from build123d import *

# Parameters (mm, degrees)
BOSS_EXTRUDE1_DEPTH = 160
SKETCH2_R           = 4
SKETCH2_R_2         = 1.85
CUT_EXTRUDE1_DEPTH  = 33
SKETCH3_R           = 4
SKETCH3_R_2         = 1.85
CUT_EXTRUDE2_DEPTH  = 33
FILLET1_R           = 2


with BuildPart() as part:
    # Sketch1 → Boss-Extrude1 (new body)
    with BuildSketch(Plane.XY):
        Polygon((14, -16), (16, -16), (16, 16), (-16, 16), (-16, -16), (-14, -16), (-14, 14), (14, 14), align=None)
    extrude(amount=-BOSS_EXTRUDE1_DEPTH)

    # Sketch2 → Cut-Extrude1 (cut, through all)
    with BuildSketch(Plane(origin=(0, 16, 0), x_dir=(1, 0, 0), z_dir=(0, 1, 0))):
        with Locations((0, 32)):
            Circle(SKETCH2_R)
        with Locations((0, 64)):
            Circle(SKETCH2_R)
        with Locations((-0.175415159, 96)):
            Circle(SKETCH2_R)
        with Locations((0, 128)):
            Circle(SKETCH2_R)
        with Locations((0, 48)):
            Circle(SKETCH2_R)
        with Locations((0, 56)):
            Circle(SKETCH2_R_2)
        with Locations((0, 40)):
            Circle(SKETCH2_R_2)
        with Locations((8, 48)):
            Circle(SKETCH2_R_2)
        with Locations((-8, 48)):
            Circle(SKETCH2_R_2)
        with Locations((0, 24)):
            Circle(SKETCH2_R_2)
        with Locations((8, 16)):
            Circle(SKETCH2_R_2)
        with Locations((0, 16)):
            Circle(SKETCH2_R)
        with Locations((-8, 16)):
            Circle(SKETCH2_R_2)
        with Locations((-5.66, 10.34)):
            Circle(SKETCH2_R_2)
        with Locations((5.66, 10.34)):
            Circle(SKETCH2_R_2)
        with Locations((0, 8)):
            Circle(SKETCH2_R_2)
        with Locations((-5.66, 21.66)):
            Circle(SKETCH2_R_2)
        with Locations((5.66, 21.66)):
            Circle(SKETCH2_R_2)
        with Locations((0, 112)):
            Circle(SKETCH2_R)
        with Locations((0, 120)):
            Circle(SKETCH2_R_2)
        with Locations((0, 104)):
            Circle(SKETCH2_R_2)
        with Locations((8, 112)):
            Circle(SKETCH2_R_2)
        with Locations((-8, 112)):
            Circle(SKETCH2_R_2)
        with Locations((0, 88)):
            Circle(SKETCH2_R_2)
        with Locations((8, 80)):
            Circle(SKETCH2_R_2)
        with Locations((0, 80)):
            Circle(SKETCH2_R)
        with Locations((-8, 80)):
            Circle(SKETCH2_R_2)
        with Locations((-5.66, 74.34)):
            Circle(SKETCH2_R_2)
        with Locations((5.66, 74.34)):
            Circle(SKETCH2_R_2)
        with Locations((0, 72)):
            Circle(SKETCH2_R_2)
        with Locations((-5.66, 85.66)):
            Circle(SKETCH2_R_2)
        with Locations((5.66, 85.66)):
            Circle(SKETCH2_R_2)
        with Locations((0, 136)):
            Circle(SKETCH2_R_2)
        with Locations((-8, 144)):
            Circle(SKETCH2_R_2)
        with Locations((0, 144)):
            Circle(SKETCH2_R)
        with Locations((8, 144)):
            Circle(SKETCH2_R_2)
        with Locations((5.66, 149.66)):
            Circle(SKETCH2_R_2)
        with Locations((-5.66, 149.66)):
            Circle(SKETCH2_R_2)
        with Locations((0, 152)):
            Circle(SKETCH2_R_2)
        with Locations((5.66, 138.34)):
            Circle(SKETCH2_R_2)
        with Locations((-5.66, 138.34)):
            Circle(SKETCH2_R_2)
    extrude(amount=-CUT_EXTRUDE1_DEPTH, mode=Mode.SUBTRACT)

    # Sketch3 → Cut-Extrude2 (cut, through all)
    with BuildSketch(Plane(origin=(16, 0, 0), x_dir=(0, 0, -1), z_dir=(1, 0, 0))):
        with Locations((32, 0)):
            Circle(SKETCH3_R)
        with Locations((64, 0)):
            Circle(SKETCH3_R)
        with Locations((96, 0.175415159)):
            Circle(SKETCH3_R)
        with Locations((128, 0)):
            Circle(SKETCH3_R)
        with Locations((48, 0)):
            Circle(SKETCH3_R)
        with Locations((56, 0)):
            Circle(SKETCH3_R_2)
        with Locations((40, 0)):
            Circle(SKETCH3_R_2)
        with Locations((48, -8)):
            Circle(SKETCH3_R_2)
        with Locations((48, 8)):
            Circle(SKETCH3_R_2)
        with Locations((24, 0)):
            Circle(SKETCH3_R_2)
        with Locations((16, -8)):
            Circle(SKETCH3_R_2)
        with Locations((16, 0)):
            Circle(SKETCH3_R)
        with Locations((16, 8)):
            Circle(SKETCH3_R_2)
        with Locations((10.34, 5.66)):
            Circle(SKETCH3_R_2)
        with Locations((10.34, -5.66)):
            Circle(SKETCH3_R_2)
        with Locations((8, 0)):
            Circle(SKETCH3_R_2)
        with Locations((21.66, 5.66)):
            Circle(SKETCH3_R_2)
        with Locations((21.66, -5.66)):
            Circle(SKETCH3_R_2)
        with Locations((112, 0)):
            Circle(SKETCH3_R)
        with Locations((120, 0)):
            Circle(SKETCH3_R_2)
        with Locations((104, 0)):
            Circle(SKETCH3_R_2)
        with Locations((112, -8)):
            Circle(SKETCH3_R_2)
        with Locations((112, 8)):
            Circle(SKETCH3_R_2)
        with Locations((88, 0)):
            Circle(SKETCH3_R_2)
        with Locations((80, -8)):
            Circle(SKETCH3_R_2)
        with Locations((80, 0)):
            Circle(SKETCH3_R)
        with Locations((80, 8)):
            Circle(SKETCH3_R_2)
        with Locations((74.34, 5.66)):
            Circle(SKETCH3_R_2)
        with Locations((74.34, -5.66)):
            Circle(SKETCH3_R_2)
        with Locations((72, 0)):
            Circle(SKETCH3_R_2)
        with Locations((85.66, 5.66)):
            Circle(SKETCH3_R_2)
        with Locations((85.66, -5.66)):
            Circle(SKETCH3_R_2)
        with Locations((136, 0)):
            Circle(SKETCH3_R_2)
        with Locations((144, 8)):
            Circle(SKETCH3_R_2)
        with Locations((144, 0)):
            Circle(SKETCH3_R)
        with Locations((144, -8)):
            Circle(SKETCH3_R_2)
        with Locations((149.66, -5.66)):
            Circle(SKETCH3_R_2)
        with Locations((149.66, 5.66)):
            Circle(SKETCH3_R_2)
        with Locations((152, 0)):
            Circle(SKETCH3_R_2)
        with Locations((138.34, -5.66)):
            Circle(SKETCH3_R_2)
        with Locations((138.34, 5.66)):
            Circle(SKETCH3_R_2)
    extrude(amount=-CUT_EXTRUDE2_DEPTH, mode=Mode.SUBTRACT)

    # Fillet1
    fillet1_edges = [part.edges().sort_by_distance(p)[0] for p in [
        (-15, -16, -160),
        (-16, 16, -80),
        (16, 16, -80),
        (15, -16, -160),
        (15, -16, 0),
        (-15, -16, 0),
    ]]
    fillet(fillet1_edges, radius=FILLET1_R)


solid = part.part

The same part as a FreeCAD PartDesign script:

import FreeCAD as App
import Part
import Sketcher
Q = App.Units.Quantity


def edges_at(feature, points):
    """Names of the edges that pass closest to the given points."""
    edges = feature.Shape.Edges
    near = lambda p: min(range(len(edges)), key=lambda i: edges[i].distToShape(Part.Vertex(*p))[0])
    return sorted({f"Edge{near(p) + 1}" for p in points})


def add_polygon(sketch, points):
    """Adds a closed chain of lines whose ends are joined by coincident constraints."""
    first, n = sketch.GeometryCount, len(points)
    for a, b in zip(points, points[1:] + points[:1]):
        sketch.addGeometry(Part.LineSegment(App.Vector(*a, 0), App.Vector(*b, 0)), False)
    for i in range(n):
        sketch.addConstraint(Sketcher.Constraint("Coincident", first + i, 2, first + (i + 1) % n, 1))

doc = App.newDocument("Part")
body = doc.addObject("PartDesign::Body", "Body")

sketch1 = body.newObject("Sketcher::SketchObject", "Sketch")
sketch1.AttachmentSupport = (doc.getObject("XY_Plane"), [""])
sketch1.MapMode = "FlatFace"
add_polygon(sketch1, [(14, -16), (16, -16), (16, 16), (-16, 16), (-16, -16), (-14, -16), (-14, 14), (14, 14)])
sketch1.addConstraint([
    Sketcher.Constraint("Horizontal", 0),
    Sketcher.Constraint("Vertical", 1),
    Sketcher.Constraint("Horizontal", 2),
    Sketcher.Constraint("Vertical", 3),
    Sketcher.Constraint("Horizontal", 4),
    Sketcher.Constraint("Vertical", 5),
    Sketcher.Constraint("Horizontal", 6),
    Sketcher.Constraint("Vertical", 7),
    Sketcher.Constraint("Symmetric", 0, 2, 2, 2, -1, 1),
    Sketcher.Constraint("Symmetric", 4, 2, 7, 2, -2),
    Sketcher.Constraint("Equal", 2, 1),
    Sketcher.Constraint("DistanceX", 0, 1, 0, 2, Q("2 mm")),
    Sketcher.Constraint("DistanceX", 2, 2, 2, 1, Q("32 mm")),
    Sketcher.Constraint("DistanceY", 5, 1, 5, 2, Q("30 mm")),
])
pad1 = body.newObject("PartDesign::Pad", "Pad")
pad1.Profile = sketch1
pad1.Length = 160
pad1.Reversed = True

sketch2 = body.newObject("Sketcher::SketchObject", "Sketch001")
sketch2.AttachmentSupport = (doc.getObject("XZ_Plane"), [""])
sketch2.MapMode = "FlatFace"
sketch2.AttachmentOffset = App.Placement(App.Vector(0, 0, -16), App.Rotation())
sketch2.addGeometry([
    Part.Circle(App.Vector(0, -32, 0), App.Vector(0, 0, 1), 4),
    Part.Circle(App.Vector(0, -64, 0), App.Vector(0, 0, 1), 4),
    Part.Circle(App.Vector(-0.2, -96, 0), App.Vector(0, 0, 1), 4),
    Part.Circle(App.Vector(0, -128, 0), App.Vector(0, 0, 1), 4),
    Part.Circle(App.Vector(0, -48, 0), App.Vector(0, 0, 1), 4),
    Part.Circle(App.Vector(0, -56, 0), App.Vector(0, 0, 1), 1.9),
    Part.Circle(App.Vector(0, -40, 0), App.Vector(0, 0, 1), 1.9),
    Part.Circle(App.Vector(8, -48, 0), App.Vector(0, 0, 1), 1.9),
    Part.Circle(App.Vector(-8, -48, 0), App.Vector(0, 0, 1), 1.9),
    Part.Circle(App.Vector(0, -24, 0), App.Vector(0, 0, 1), 1.9),
    Part.Circle(App.Vector(8, -16, 0), App.Vector(0, 0, 1), 1.9),
    Part.Circle(App.Vector(0, -16, 0), App.Vector(0, 0, 1), 4),
    Part.Circle(App.Vector(-8, -16, 0), App.Vector(0, 0, 1), 1.9),
    Part.Circle(App.Vector(-5.7, -10.3, 0), App.Vector(0, 0, 1), 1.9),
    Part.Circle(App.Vector(5.7, -10.3, 0), App.Vector(0, 0, 1), 1.9),
    Part.Circle(App.Vector(0, -8, 0), App.Vector(0, 0, 1), 1.9),
    Part.Circle(App.Vector(-5.7, -21.7, 0), App.Vector(0, 0, 1), 1.9),
    Part.Circle(App.Vector(5.7, -21.7, 0), App.Vector(0, 0, 1), 1.9),
    Part.Circle(App.Vector(0, -112, 0), App.Vector(0, 0, 1), 4),
    Part.Circle(App.Vector(0, -120, 0), App.Vector(0, 0, 1), 1.9),
    Part.Circle(App.Vector(0, -104, 0), App.Vector(0, 0, 1), 1.9),
    Part.Circle(App.Vector(8, -112, 0), App.Vector(0, 0, 1), 1.9),
    Part.Circle(App.Vector(-8, -112, 0), App.Vector(0, 0, 1), 1.9),
    Part.Circle(App.Vector(0, -88, 0), App.Vector(0, 0, 1), 1.9),
    Part.Circle(App.Vector(8, -80, 0), App.Vector(0, 0, 1), 1.9),
    Part.Circle(App.Vector(0, -80, 0), App.Vector(0, 0, 1), 4),
    Part.Circle(App.Vector(-8, -80, 0), App.Vector(0, 0, 1), 1.9),
    Part.Circle(App.Vector(-5.7, -74.3, 0), App.Vector(0, 0, 1), 1.9),
    Part.Circle(App.Vector(5.7, -74.3, 0), App.Vector(0, 0, 1), 1.9),
    Part.Circle(App.Vector(0, -72, 0), App.Vector(0, 0, 1), 1.9),
    Part.Circle(App.Vector(-5.7, -85.7, 0), App.Vector(0, 0, 1), 1.9),
    Part.Circle(App.Vector(5.7, -85.7, 0), App.Vector(0, 0, 1), 1.9),
    Part.Circle(App.Vector(0, -136, 0), App.Vector(0, 0, 1), 1.9),
    Part.Circle(App.Vector(-8, -144, 0), App.Vector(0, 0, 1), 1.9),
    Part.Circle(App.Vector(0, -144, 0), App.Vector(0, 0, 1), 4),
    Part.Circle(App.Vector(8, -144, 0), App.Vector(0, 0, 1), 1.9),
    Part.Circle(App.Vector(5.7, -149.7, 0), App.Vector(0, 0, 1), 1.9),
    Part.Circle(App.Vector(-5.7, -149.7, 0), App.Vector(0, 0, 1), 1.9),
    Part.Circle(App.Vector(0, -152, 0), App.Vector(0, 0, 1), 1.9),
    Part.Circle(App.Vector(5.7, -138.3, 0), App.Vector(0, 0, 1), 1.9),
    Part.Circle(App.Vector(-5.7, -138.3, 0), App.Vector(0, 0, 1), 1.9),
], False)
sketch2.addConstraint([
    Sketcher.Constraint("Equal", 0, 1),
    Sketcher.Constraint("Equal", 1, 2),
    Sketcher.Constraint("Equal", 2, 3),
    Sketcher.Constraint("Equal", 3, 4),
    Sketcher.Constraint("Equal", 5, 6),
    Sketcher.Constraint("Equal", 6, 7),
    Sketcher.Constraint("Equal", 7, 8),
    Sketcher.Constraint("Equal", 8, 9),
    Sketcher.Constraint("Equal", 9, 10),
    Sketcher.Constraint("Equal", 4, 11),
    Sketcher.Constraint("Equal", 10, 12),
    Sketcher.Constraint("Equal", 12, 13),
    Sketcher.Constraint("Equal", 13, 14),
    Sketcher.Constraint("Equal", 14, 15),
    Sketcher.Constraint("Equal", 15, 16),
    Sketcher.Constraint("Equal", 16, 17),
    Sketcher.Constraint("Equal", 11, 18),
    Sketcher.Constraint("Equal", 17, 19),
    Sketcher.Constraint("Equal", 19, 20),
    Sketcher.Constraint("Equal", 20, 21),
    Sketcher.Constraint("Equal", 21, 22),
    Sketcher.Constraint("Equal", 22, 23),
    Sketcher.Constraint("Equal", 23, 24),
    Sketcher.Constraint("Equal", 18, 25),
    Sketcher.Constraint("Equal", 24, 26),
    Sketcher.Constraint("Equal", 26, 27),
    Sketcher.Constraint("Equal", 27, 28),
    Sketcher.Constraint("Equal", 28, 29),
    Sketcher.Constraint("Equal", 29, 30),
    Sketcher.Constraint("Equal", 30, 31),
    Sketcher.Constraint("Equal", 31, 32),
    Sketcher.Constraint("Equal", 32, 33),
    Sketcher.Constraint("Equal", 25, 34),
    Sketcher.Constraint("Equal", 33, 35),
    Sketcher.Constraint("Equal", 35, 36),
    Sketcher.Constraint("Equal", 36, 37),
    Sketcher.Constraint("Equal", 37, 38),
    Sketcher.Constraint("Equal", 38, 39),
    Sketcher.Constraint("Equal", 39, 40),
    Sketcher.Constraint("Symmetric", 7, 3, 8, 3, -2),
    Sketcher.Constraint("Symmetric", 10, 3, 12, 3, -2),
    Sketcher.Constraint("Symmetric", 13, 3, 14, 3, -2),
    Sketcher.Constraint("Symmetric", 16, 3, 17, 3, -2),
    Sketcher.Constraint("Symmetric", 21, 3, 22, 3, -2),
    Sketcher.Constraint("Symmetric", 24, 3, 26, 3, -2),
    Sketcher.Constraint("Symmetric", 27, 3, 28, 3, -2),
    Sketcher.Constraint("Symmetric", 30, 3, 31, 3, -2),
    Sketcher.Constraint("Symmetric", 33, 3, 35, 3, -2),
    Sketcher.Constraint("Symmetric", 36, 3, 37, 3, -2),
    Sketcher.Constraint("Symmetric", 39, 3, 40, 3, -2),
    Sketcher.Constraint("PointOnObject", 0, 3, -2),
    Sketcher.Constraint("PointOnObject", 1, 3, -2),
    Sketcher.Constraint("PointOnObject", 3, 3, -2),
    Sketcher.Constraint("PointOnObject", 4, 3, -2),
    Sketcher.Constraint("PointOnObject", 5, 3, -2),
    Sketcher.Constraint("PointOnObject", 6, 3, -2),
    Sketcher.Constraint("PointOnObject", 9, 3, -2),
    Sketcher.Constraint("PointOnObject", 11, 3, -2),
    Sketcher.Constraint("PointOnObject", 15, 3, -2),
    Sketcher.Constraint("PointOnObject", 18, 3, -2),
    Sketcher.Constraint("PointOnObject", 19, 3, -2),
    Sketcher.Constraint("PointOnObject", 20, 3, -2),
    Sketcher.Constraint("PointOnObject", 23, 3, -2),
    Sketcher.Constraint("PointOnObject", 25, 3, -2),
    Sketcher.Constraint("PointOnObject", 29, 3, -2),
    Sketcher.Constraint("PointOnObject", 32, 3, -2),
    Sketcher.Constraint("PointOnObject", 34, 3, -2),
    Sketcher.Constraint("PointOnObject", 38, 3, -2),
    Sketcher.Constraint("Horizontal", 4, 3, 7, 3),
    Sketcher.Constraint("Horizontal", 10, 3, 11, 3),
    Sketcher.Constraint("Horizontal", 18, 3, 21, 3),
    Sketcher.Constraint("Horizontal", 24, 3, 25, 3),
    Sketcher.Constraint("Horizontal", 33, 3, 34, 3),
    Sketcher.Constraint("Vertical", 7, 3, 10, 3),
    Sketcher.Constraint("Vertical", 13, 3, 16, 3),
    Sketcher.Constraint("Vertical", 10, 3, 21, 3),
    Sketcher.Constraint("Vertical", 21, 3, 24, 3),
    Sketcher.Constraint("Vertical", 16, 3, 27, 3),
    Sketcher.Constraint("Vertical", 27, 3, 30, 3),
    Sketcher.Constraint("Vertical", 26, 3, 33, 3),
    Sketcher.Constraint("Vertical", 31, 3, 36, 3),
    Sketcher.Constraint("Vertical", 36, 3, 39, 3),
    Sketcher.Constraint("Diameter", 0, Q("8 mm")),
    Sketcher.Constraint("Diameter", 5, Q("3.7 mm")),
    Sketcher.Constraint("DistanceY", 0, 3, -1, 1, Q("32 mm")),
    Sketcher.Constraint("DistanceY", 1, 3, -1, 1, Q("64 mm")),
    Sketcher.Constraint("DistanceY", 2, 3, -1, 1, Q("96 mm")),
    Sketcher.Constraint("DistanceY", 3, 3, -1, 1, Q("128 mm")),
    Sketcher.Constraint("DistanceY", 4, 3, -1, 1, Q("48 mm")),
    Sketcher.Constraint("DistanceY", 5, 3, -1, 1, Q("56 mm")),
    Sketcher.Constraint("DistanceY", 6, 3, -1, 1, Q("40 mm")),
    Sketcher.Constraint("DistanceX", -1, 1, 7, 3, Q("8 mm")),
    Sketcher.Constraint("DistanceY", 9, 3, -1, 1, Q("24 mm")),
    Sketcher.Constraint("DistanceY", 10, 3, -1, 1, Q("16 mm")),
    Sketcher.Constraint("DistanceY", 15, 3, -1, 1, Q("8 mm")),
    Sketcher.Constraint("DistanceY", 18, 3, -1, 1, Q("112 mm")),
    Sketcher.Constraint("DistanceY", 19, 3, -1, 1, Q("120 mm")),
    Sketcher.Constraint("DistanceY", 20, 3, -1, 1, Q("104 mm")),
    Sketcher.Constraint("DistanceY", 23, 3, -1, 1, Q("88 mm")),
    Sketcher.Constraint("DistanceY", 24, 3, -1, 1, Q("80 mm")),
    Sketcher.Constraint("DistanceY", 29, 3, -1, 1, Q("72 mm")),
    Sketcher.Constraint("DistanceY", 32, 3, -1, 1, Q("136 mm")),
    Sketcher.Constraint("DistanceY", 33, 3, -1, 1, Q("144 mm")),
    Sketcher.Constraint("DistanceY", 38, 3, -1, 1, Q("152 mm")),
    Sketcher.Constraint("DistanceX", 13, 3, -1, 1, Q("5.66 mm")),
    Sketcher.Constraint("DistanceY", 13, 3, -1, 1, Q("10.34 mm")),
    Sketcher.Constraint("DistanceY", 16, 3, -1, 1, Q("21.66 mm")),
    Sketcher.Constraint("DistanceY", 27, 3, -1, 1, Q("74.34 mm")),
    Sketcher.Constraint("DistanceY", 30, 3, -1, 1, Q("85.66 mm")),
    Sketcher.Constraint("DistanceY", 36, 3, -1, 1, Q("149.66 mm")),
    Sketcher.Constraint("DistanceY", 39, 3, -1, 1, Q("138.34 mm")),
    Sketcher.Constraint("DistanceX", 2, 3, -1, 1, Q("0.175415 mm")),
])
pocket1 = body.newObject("PartDesign::Pocket", "Pocket")
pocket1.Profile = sketch2
pocket1.Type = "ThroughAll"
pocket1.Reversed = True

sketch3 = body.newObject("Sketcher::SketchObject", "Sketch002")
sketch3.AttachmentSupport = (doc.getObject("YZ_Plane"), [""])
sketch3.MapMode = "FlatFace"
sketch3.AttachmentOffset = App.Placement(App.Vector(0, 0, 16), App.Rotation())
sketch3.addGeometry([
    Part.Circle(App.Vector(0, -32, 0), App.Vector(0, 0, 1), 4),
    Part.Circle(App.Vector(0, -64, 0), App.Vector(0, 0, 1), 4),
    Part.Circle(App.Vector(0.2, -96, 0), App.Vector(0, 0, 1), 4),
    Part.Circle(App.Vector(0, -128, 0), App.Vector(0, 0, 1), 4),
    Part.Circle(App.Vector(0, -48, 0), App.Vector(0, 0, 1), 4),
    Part.Circle(App.Vector(0, -56, 0), App.Vector(0, 0, 1), 1.9),
    Part.Circle(App.Vector(0, -40, 0), App.Vector(0, 0, 1), 1.9),
    Part.Circle(App.Vector(-8, -48, 0), App.Vector(0, 0, 1), 1.9),
    Part.Circle(App.Vector(8, -48, 0), App.Vector(0, 0, 1), 1.9),
    Part.Circle(App.Vector(0, -24, 0), App.Vector(0, 0, 1), 1.9),
    Part.Circle(App.Vector(-8, -16, 0), App.Vector(0, 0, 1), 1.9),
    Part.Circle(App.Vector(0, -16, 0), App.Vector(0, 0, 1), 4),
    Part.Circle(App.Vector(8, -16, 0), App.Vector(0, 0, 1), 1.9),
    Part.Circle(App.Vector(5.7, -10.3, 0), App.Vector(0, 0, 1), 1.9),
    Part.Circle(App.Vector(-5.7, -10.3, 0), App.Vector(0, 0, 1), 1.9),
    Part.Circle(App.Vector(0, -8, 0), App.Vector(0, 0, 1), 1.9),
    Part.Circle(App.Vector(5.7, -21.7, 0), App.Vector(0, 0, 1), 1.9),
    Part.Circle(App.Vector(-5.7, -21.7, 0), App.Vector(0, 0, 1), 1.9),
    Part.Circle(App.Vector(0, -112, 0), App.Vector(0, 0, 1), 4),
    Part.Circle(App.Vector(0, -120, 0), App.Vector(0, 0, 1), 1.9),
    Part.Circle(App.Vector(0, -104, 0), App.Vector(0, 0, 1), 1.9),
    Part.Circle(App.Vector(-8, -112, 0), App.Vector(0, 0, 1), 1.9),
    Part.Circle(App.Vector(8, -112, 0), App.Vector(0, 0, 1), 1.9),
    Part.Circle(App.Vector(0, -88, 0), App.Vector(0, 0, 1), 1.9),
    Part.Circle(App.Vector(-8, -80, 0), App.Vector(0, 0, 1), 1.9),
    Part.Circle(App.Vector(0, -80, 0), App.Vector(0, 0, 1), 4),
    Part.Circle(App.Vector(8, -80, 0), App.Vector(0, 0, 1), 1.9),
    Part.Circle(App.Vector(5.7, -74.3, 0), App.Vector(0, 0, 1), 1.9),
    Part.Circle(App.Vector(-5.7, -74.3, 0), App.Vector(0, 0, 1), 1.9),
    Part.Circle(App.Vector(0, -72, 0), App.Vector(0, 0, 1), 1.9),
    Part.Circle(App.Vector(5.7, -85.7, 0), App.Vector(0, 0, 1), 1.9),
    Part.Circle(App.Vector(-5.7, -85.7, 0), App.Vector(0, 0, 1), 1.9),
    Part.Circle(App.Vector(0, -136, 0), App.Vector(0, 0, 1), 1.9),
    Part.Circle(App.Vector(8, -144, 0), App.Vector(0, 0, 1), 1.9),
    Part.Circle(App.Vector(0, -144, 0), App.Vector(0, 0, 1), 4),
    Part.Circle(App.Vector(-8, -144, 0), App.Vector(0, 0, 1), 1.9),
    Part.Circle(App.Vector(-5.7, -149.7, 0), App.Vector(0, 0, 1), 1.9),
    Part.Circle(App.Vector(5.7, -149.7, 0), App.Vector(0, 0, 1), 1.9),
    Part.Circle(App.Vector(0, -152, 0), App.Vector(0, 0, 1), 1.9),
    Part.Circle(App.Vector(-5.7, -138.3, 0), App.Vector(0, 0, 1), 1.9),
    Part.Circle(App.Vector(5.7, -138.3, 0), App.Vector(0, 0, 1), 1.9),
], False)
sketch3.addConstraint([
    Sketcher.Constraint("Equal", 0, 1),
    Sketcher.Constraint("Equal", 1, 2),
    Sketcher.Constraint("Equal", 2, 3),
    Sketcher.Constraint("Equal", 3, 4),
    Sketcher.Constraint("Equal", 5, 6),
    Sketcher.Constraint("Equal", 6, 7),
    Sketcher.Constraint("Equal", 7, 8),
    Sketcher.Constraint("Equal", 8, 9),
    Sketcher.Constraint("Equal", 9, 10),
    Sketcher.Constraint("Equal", 4, 11),
    Sketcher.Constraint("Equal", 10, 12),
    Sketcher.Constraint("Equal", 12, 13),
    Sketcher.Constraint("Equal", 13, 14),
    Sketcher.Constraint("Equal", 14, 15),
    Sketcher.Constraint("Equal", 15, 16),
    Sketcher.Constraint("Equal", 16, 17),
    Sketcher.Constraint("Equal", 11, 18),
    Sketcher.Constraint("Equal", 17, 19),
    Sketcher.Constraint("Equal", 19, 20),
    Sketcher.Constraint("Equal", 20, 21),
    Sketcher.Constraint("Equal", 21, 22),
    Sketcher.Constraint("Equal", 22, 23),
    Sketcher.Constraint("Equal", 23, 24),
    Sketcher.Constraint("Equal", 18, 25),
    Sketcher.Constraint("Equal", 24, 26),
    Sketcher.Constraint("Equal", 26, 27),
    Sketcher.Constraint("Equal", 27, 28),
    Sketcher.Constraint("Equal", 28, 29),
    Sketcher.Constraint("Equal", 29, 30),
    Sketcher.Constraint("Equal", 30, 31),
    Sketcher.Constraint("Equal", 31, 32),
    Sketcher.Constraint("Equal", 32, 33),
    Sketcher.Constraint("Equal", 25, 34),
    Sketcher.Constraint("Equal", 33, 35),
    Sketcher.Constraint("Equal", 35, 36),
    Sketcher.Constraint("Equal", 36, 37),
    Sketcher.Constraint("Equal", 37, 38),
    Sketcher.Constraint("Equal", 38, 39),
    Sketcher.Constraint("Equal", 39, 40),
    Sketcher.Constraint("Symmetric", 7, 3, 8, 3, -2),
    Sketcher.Constraint("Symmetric", 10, 3, 12, 3, -2),
    Sketcher.Constraint("Symmetric", 13, 3, 14, 3, -2),
    Sketcher.Constraint("Symmetric", 16, 3, 17, 3, -2),
    Sketcher.Constraint("Symmetric", 21, 3, 22, 3, -2),
    Sketcher.Constraint("Symmetric", 24, 3, 26, 3, -2),
    Sketcher.Constraint("Symmetric", 27, 3, 28, 3, -2),
    Sketcher.Constraint("Symmetric", 30, 3, 31, 3, -2),
    Sketcher.Constraint("Symmetric", 33, 3, 35, 3, -2),
    Sketcher.Constraint("Symmetric", 36, 3, 37, 3, -2),
    Sketcher.Constraint("Symmetric", 39, 3, 40, 3, -2),
    Sketcher.Constraint("PointOnObject", 0, 3, -2),
    Sketcher.Constraint("PointOnObject", 1, 3, -2),
    Sketcher.Constraint("PointOnObject", 3, 3, -2),
    Sketcher.Constraint("PointOnObject", 4, 3, -2),
    Sketcher.Constraint("PointOnObject", 5, 3, -2),
    Sketcher.Constraint("PointOnObject", 6, 3, -2),
    Sketcher.Constraint("PointOnObject", 9, 3, -2),
    Sketcher.Constraint("PointOnObject", 11, 3, -2),
    Sketcher.Constraint("PointOnObject", 15, 3, -2),
    Sketcher.Constraint("PointOnObject", 18, 3, -2),
    Sketcher.Constraint("PointOnObject", 19, 3, -2),
    Sketcher.Constraint("PointOnObject", 20, 3, -2),
    Sketcher.Constraint("PointOnObject", 23, 3, -2),
    Sketcher.Constraint("PointOnObject", 25, 3, -2),
    Sketcher.Constraint("PointOnObject", 29, 3, -2),
    Sketcher.Constraint("PointOnObject", 32, 3, -2),
    Sketcher.Constraint("PointOnObject", 34, 3, -2),
    Sketcher.Constraint("PointOnObject", 38, 3, -2),
    Sketcher.Constraint("Horizontal", 4, 3, 7, 3),
    Sketcher.Constraint("Horizontal", 10, 3, 11, 3),
    Sketcher.Constraint("Horizontal", 18, 3, 21, 3),
    Sketcher.Constraint("Horizontal", 24, 3, 25, 3),
    Sketcher.Constraint("Horizontal", 33, 3, 34, 3),
    Sketcher.Constraint("Vertical", 7, 3, 10, 3),
    Sketcher.Constraint("Vertical", 13, 3, 16, 3),
    Sketcher.Constraint("Vertical", 10, 3, 21, 3),
    Sketcher.Constraint("Vertical", 21, 3, 24, 3),
    Sketcher.Constraint("Vertical", 16, 3, 27, 3),
    Sketcher.Constraint("Vertical", 27, 3, 30, 3),
    Sketcher.Constraint("Vertical", 26, 3, 33, 3),
    Sketcher.Constraint("Vertical", 31, 3, 36, 3),
    Sketcher.Constraint("Vertical", 36, 3, 39, 3),
    Sketcher.Constraint("Diameter", 0, Q("8 mm")),
    Sketcher.Constraint("Diameter", 5, Q("3.7 mm")),
    Sketcher.Constraint("DistanceY", 0, 3, -1, 1, Q("32 mm")),
    Sketcher.Constraint("DistanceY", 1, 3, -1, 1, Q("64 mm")),
    Sketcher.Constraint("DistanceY", 2, 3, -1, 1, Q("96 mm")),
    Sketcher.Constraint("DistanceY", 3, 3, -1, 1, Q("128 mm")),
    Sketcher.Constraint("DistanceY", 4, 3, -1, 1, Q("48 mm")),
    Sketcher.Constraint("DistanceY", 5, 3, -1, 1, Q("56 mm")),
    Sketcher.Constraint("DistanceY", 6, 3, -1, 1, Q("40 mm")),
    Sketcher.Constraint("DistanceX", 7, 3, -1, 1, Q("8 mm")),
    Sketcher.Constraint("DistanceY", 9, 3, -1, 1, Q("24 mm")),
    Sketcher.Constraint("DistanceY", 10, 3, -1, 1, Q("16 mm")),
    Sketcher.Constraint("DistanceY", 15, 3, -1, 1, Q("8 mm")),
    Sketcher.Constraint("DistanceY", 18, 3, -1, 1, Q("112 mm")),
    Sketcher.Constraint("DistanceY", 19, 3, -1, 1, Q("120 mm")),
    Sketcher.Constraint("DistanceY", 20, 3, -1, 1, Q("104 mm")),
    Sketcher.Constraint("DistanceY", 23, 3, -1, 1, Q("88 mm")),
    Sketcher.Constraint("DistanceY", 24, 3, -1, 1, Q("80 mm")),
    Sketcher.Constraint("DistanceY", 29, 3, -1, 1, Q("72 mm")),
    Sketcher.Constraint("DistanceY", 32, 3, -1, 1, Q("136 mm")),
    Sketcher.Constraint("DistanceY", 33, 3, -1, 1, Q("144 mm")),
    Sketcher.Constraint("DistanceY", 38, 3, -1, 1, Q("152 mm")),
    Sketcher.Constraint("DistanceX", -1, 1, 13, 3, Q("5.66 mm")),
    Sketcher.Constraint("DistanceY", 13, 3, -1, 1, Q("10.34 mm")),
    Sketcher.Constraint("DistanceY", 16, 3, -1, 1, Q("21.66 mm")),
    Sketcher.Constraint("DistanceY", 27, 3, -1, 1, Q("74.34 mm")),
    Sketcher.Constraint("DistanceY", 30, 3, -1, 1, Q("85.66 mm")),
    Sketcher.Constraint("DistanceY", 36, 3, -1, 1, Q("149.66 mm")),
    Sketcher.Constraint("DistanceY", 39, 3, -1, 1, Q("138.34 mm")),
    Sketcher.Constraint("DistanceX", -1, 1, 2, 3, Q("0.175415 mm")),
])
pocket2 = body.newObject("PartDesign::Pocket", "Pocket001")
pocket2.Profile = sketch3
pocket2.Type = "ThroughAll"
doc.recompute()

fillet = body.newObject("PartDesign::Fillet", "Fillet")
fillet.Base = (pocket2, edges_at(pocket2, [
    (-15, -16, -160),
    (-16, 16, -80),
    (16, 16, -80),
    (15, -16, -160),
    (15, -16, 0),
    (-15, -16, 0),
]))
fillet.Radius = 2

doc.recompute()
